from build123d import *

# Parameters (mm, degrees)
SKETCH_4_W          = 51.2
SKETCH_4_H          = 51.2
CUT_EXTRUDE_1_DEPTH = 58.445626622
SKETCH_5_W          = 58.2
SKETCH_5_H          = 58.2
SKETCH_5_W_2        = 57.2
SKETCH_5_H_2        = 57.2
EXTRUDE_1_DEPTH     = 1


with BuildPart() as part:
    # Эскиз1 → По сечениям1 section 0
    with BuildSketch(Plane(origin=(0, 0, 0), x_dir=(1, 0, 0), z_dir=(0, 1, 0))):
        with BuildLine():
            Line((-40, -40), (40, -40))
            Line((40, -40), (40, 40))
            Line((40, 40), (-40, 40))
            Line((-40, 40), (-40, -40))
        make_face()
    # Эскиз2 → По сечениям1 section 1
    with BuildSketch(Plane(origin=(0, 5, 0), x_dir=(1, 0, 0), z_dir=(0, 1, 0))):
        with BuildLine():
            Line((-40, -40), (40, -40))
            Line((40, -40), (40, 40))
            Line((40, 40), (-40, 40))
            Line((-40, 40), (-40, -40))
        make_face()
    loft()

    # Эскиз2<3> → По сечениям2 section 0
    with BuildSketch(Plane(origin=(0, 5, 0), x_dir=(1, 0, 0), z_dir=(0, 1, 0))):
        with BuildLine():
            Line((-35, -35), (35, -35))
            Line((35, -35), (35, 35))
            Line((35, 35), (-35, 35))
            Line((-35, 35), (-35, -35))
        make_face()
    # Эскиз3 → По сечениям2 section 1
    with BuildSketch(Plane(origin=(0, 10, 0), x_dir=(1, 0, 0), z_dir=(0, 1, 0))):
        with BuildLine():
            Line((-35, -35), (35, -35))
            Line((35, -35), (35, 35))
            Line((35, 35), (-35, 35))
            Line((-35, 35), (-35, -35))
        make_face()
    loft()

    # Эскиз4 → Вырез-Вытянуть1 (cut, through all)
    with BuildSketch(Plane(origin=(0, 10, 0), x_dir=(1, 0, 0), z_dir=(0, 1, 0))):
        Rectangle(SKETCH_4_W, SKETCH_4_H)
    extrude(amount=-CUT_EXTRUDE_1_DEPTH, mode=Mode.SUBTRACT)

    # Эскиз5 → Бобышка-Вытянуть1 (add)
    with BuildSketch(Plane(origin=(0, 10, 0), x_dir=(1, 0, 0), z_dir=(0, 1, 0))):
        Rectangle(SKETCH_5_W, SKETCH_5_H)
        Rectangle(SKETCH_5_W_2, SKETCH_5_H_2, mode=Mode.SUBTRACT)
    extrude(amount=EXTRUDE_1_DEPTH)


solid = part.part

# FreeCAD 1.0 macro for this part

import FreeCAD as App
import Part
import Sketcher

V = App.Vector


def add_polygon(sketch, points):
    """Adds a closed chain of lines whose ends are joined by coincident constraints."""
    first, n = sketch.GeometryCount, len(points)
    for a, b in zip(points, points[1:] + points[:1]):
        sketch.addGeometry(Part.LineSegment(App.Vector(*a, 0), App.Vector(*b, 0)), False)
    for i in range(n):
        sketch.addConstraint(Sketcher.Constraint("Coincident", first + i, 2, first + (i + 1) % n, 1))

doc = App.newDocument("Part")
params = doc.addObject("Spreadsheet::Sheet", "Params")
for row, (alias, value) in enumerate([
    ("sketch1_width", "80 mm"),
    ("sketch2_width", "80 mm"),
    ("sketch3_width", "70 mm"),
    ("sketch4_width", "70 mm"),
    ("sketch5_width", "51.2 mm"),
    ("sketch6_width", "58.2 mm"),
    ("sketch6_width2", "57.2 mm"),
    ("pad1_length", "1 mm"),
], start=1):
    params.set(f"A{row}", alias)
    params.set(f"B{row}", "=" + value)
    params.setAlias(f"B{row}", alias)

body = doc.addObject("PartDesign::Body", "Body")

# Sketch on XZ plane
sketch1 = body.newObject("Sketcher::SketchObject", "Sketch")
sketch1.AttachmentSupport = (doc.getObject("XZ_Plane"), [""])
sketch1.MapMode = "FlatFace"
add_polygon(sketch1, [(-40, 40), (40, 40), (40, -40), (-40, -40)])  # lines 0-3
sketch1.addConstraint([
    Sketcher.Constraint("Horizontal", 0),
    Sketcher.Constraint("Vertical", 1),
    Sketcher.Constraint("Horizontal", 2),
    Sketcher.Constraint("Vertical", 3),
    Sketcher.Constraint("Symmetric", 0, 2, 2, 2, -1, 1),
    Sketcher.Constraint("Equal", 2, 1),
    Sketcher.Constraint("DistanceX", 0, 1, 0, 2, 80.0),
])
sketch1.setExpression("Constraints[10]", "Params.sketch1_width")

# Sketch on XZ plane
sketch2 = body.newObject("Sketcher::SketchObject", "Sketch001")
sketch2.AttachmentSupport = (doc.getObject("XZ_Plane"), [""])
sketch2.MapMode = "FlatFace"
sketch2.AttachmentOffset = App.Placement(V(0, 0, -5), App.Rotation())
add_polygon(sketch2, [(-40, 40), (40, 40), (40, -40), (-40, -40)])  # lines 0-3
sketch2.addConstraint([
    Sketcher.Constraint("Horizontal", 0),
    Sketcher.Constraint("Vertical", 1),
    Sketcher.Constraint("Horizontal", 2),
    Sketcher.Constraint("Vertical", 3),
    Sketcher.Constraint("Symmetric", 0, 2, 2, 2, -1, 1),
    Sketcher.Constraint("Equal", 2, 1),
    Sketcher.Constraint("DistanceX", 0, 1, 0, 2, 80.0),
])
sketch2.setExpression("Constraints[10]", "Params.sketch2_width")

additiveloft = body.newObject("PartDesign::AdditiveLoft", "AdditiveLoft")
additiveloft.Profile = sketch1
additiveloft.Sections = [sketch2]

# Sketch on XZ plane
sketch3 = body.newObject("Sketcher::SketchObject", "Sketch002")
sketch3.AttachmentSupport = (doc.getObject("XZ_Plane"), [""])
sketch3.MapMode = "FlatFace"
sketch3.AttachmentOffset = App.Placement(V(0, 0, -5), App.Rotation())
add_polygon(sketch3, [(-35, 35), (35, 35), (35, -35), (-35, -35)])  # lines 0-3
sketch3.addConstraint([
    Sketcher.Constraint("Horizontal", 0),
    Sketcher.Constraint("Vertical", 1),
    Sketcher.Constraint("Horizontal", 2),
    Sketcher.Constraint("Vertical", 3),
    Sketcher.Constraint("Symmetric", 0, 2, 2, 2, -1, 1),
    Sketcher.Constraint("Equal", 2, 1),
    Sketcher.Constraint("DistanceX", 0, 1, 0, 2, 70.0),
])
sketch3.setExpression("Constraints[10]", "Params.sketch3_width")

# Sketch on XZ plane
sketch4 = body.newObject("Sketcher::SketchObject", "Sketch003")
sketch4.AttachmentSupport = (doc.getObject("XZ_Plane"), [""])
sketch4.MapMode = "FlatFace"
sketch4.AttachmentOffset = App.Placement(V(0, 0, -10), App.Rotation())
add_polygon(sketch4, [(-35, 35), (35, 35), (35, -35), (-35, -35)])  # lines 0-3
sketch4.addConstraint([
    Sketcher.Constraint("Horizontal", 0),
    Sketcher.Constraint("Vertical", 1),
    Sketcher.Constraint("Horizontal", 2),
    Sketcher.Constraint("Vertical", 3),
    Sketcher.Constraint("Symmetric", 0, 2, 2, 2, -1, 1),
    Sketcher.Constraint("Equal", 2, 1),
    Sketcher.Constraint("DistanceX", 0, 1, 0, 2, 70.0),
])
sketch4.setExpression("Constraints[10]", "Params.sketch4_width")

additiveloft2 = body.newObject("PartDesign::AdditiveLoft", "AdditiveLoft001")
additiveloft2.Profile = sketch3
additiveloft2.Sections = [sketch4]

# Sketch on XZ plane
sketch5 = body.newObject("Sketcher::SketchObject", "Sketch004")
sketch5.AttachmentSupport = (doc.getObject("XZ_Plane"), [""])
sketch5.MapMode = "FlatFace"
sketch5.AttachmentOffset = App.Placement(V(0, 0, -10), App.Rotation())
add_polygon(sketch5, [(-25.6, -25.6), (-25.6, 25.6), (25.6, 25.6), (25.6, -25.6)])  # lines 0-3
sketch5.addConstraint([
    Sketcher.Constraint("Vertical", 0),
    Sketcher.Constraint("Horizontal", 1),
    Sketcher.Constraint("Vertical", 2),
    Sketcher.Constraint("Horizontal", 3),
    Sketcher.Constraint("Symmetric", 0, 2, 2, 2, -1, 1),
    Sketcher.Constraint("Equal", 3, 0),
    Sketcher.Constraint("DistanceX", 1, 1, 1, 2, 51.2),
])
sketch5.setExpression("Constraints[10]", "Params.sketch5_width")
pocket1 = body.newObject("PartDesign::Pocket", "Pocket")
pocket1.Profile = sketch5
pocket1.Type = "ThroughAll"
pocket1.Reversed = True

# Sketch on XZ plane
sketch6 = body.newObject("Sketcher::SketchObject", "Sketch005")
sketch6.AttachmentSupport = (doc.getObject("XZ_Plane"), [""])
sketch6.MapMode = "FlatFace"
sketch6.AttachmentOffset = App.Placement(V(0, 0, -10), App.Rotation())
add_polygon(sketch6, [(-29.1, -29.1), (-29.1, 29.1), (29.1, 29.1), (29.1, -29.1)])  # lines 0-3
add_polygon(sketch6, [(28.6, 28.6), (-28.6, 28.6), (-28.6, -28.6), (28.6, -28.6)])  # lines 4-7
sketch6.addConstraint([
    Sketcher.Constraint("Vertical", 0),
    Sketcher.Constraint("Horizontal", 1),
    Sketcher.Constraint("Vertical", 2),
    Sketcher.Constraint("Horizontal", 3),
    Sketcher.Constraint("Horizontal", 4),
    Sketcher.Constraint("Vertical", 5),
    Sketcher.Constraint("Horizontal", 6),
    Sketcher.Constraint("Vertical", 7),
    Sketcher.Constraint("Symmetric", 0, 2, 2, 2, -1, 1),
    Sketcher.Constraint("Symmetric", 4, 2, 6, 2, -1, 1),
    Sketcher.Constraint("Equal", 3, 0),
    Sketcher.Constraint("Equal", 6, 5),
    Sketcher.Constraint("DistanceX", 1, 1, 1, 2, 58.2),
    Sketcher.Constraint("DistanceX", 4, 2, 4, 1, 57.2),
])
sketch6.setExpression("Constraints[20]", "Params.sketch6_width")
sketch6.setExpression("Constraints[21]", "Params.sketch6_width2")
pad1 = body.newObject("PartDesign::Pad", "Pad")
pad1.Profile = sketch6
pad1.setExpression("Length", "Params.pad1_length")
pad1.Reversed = True

doc.recompute()
